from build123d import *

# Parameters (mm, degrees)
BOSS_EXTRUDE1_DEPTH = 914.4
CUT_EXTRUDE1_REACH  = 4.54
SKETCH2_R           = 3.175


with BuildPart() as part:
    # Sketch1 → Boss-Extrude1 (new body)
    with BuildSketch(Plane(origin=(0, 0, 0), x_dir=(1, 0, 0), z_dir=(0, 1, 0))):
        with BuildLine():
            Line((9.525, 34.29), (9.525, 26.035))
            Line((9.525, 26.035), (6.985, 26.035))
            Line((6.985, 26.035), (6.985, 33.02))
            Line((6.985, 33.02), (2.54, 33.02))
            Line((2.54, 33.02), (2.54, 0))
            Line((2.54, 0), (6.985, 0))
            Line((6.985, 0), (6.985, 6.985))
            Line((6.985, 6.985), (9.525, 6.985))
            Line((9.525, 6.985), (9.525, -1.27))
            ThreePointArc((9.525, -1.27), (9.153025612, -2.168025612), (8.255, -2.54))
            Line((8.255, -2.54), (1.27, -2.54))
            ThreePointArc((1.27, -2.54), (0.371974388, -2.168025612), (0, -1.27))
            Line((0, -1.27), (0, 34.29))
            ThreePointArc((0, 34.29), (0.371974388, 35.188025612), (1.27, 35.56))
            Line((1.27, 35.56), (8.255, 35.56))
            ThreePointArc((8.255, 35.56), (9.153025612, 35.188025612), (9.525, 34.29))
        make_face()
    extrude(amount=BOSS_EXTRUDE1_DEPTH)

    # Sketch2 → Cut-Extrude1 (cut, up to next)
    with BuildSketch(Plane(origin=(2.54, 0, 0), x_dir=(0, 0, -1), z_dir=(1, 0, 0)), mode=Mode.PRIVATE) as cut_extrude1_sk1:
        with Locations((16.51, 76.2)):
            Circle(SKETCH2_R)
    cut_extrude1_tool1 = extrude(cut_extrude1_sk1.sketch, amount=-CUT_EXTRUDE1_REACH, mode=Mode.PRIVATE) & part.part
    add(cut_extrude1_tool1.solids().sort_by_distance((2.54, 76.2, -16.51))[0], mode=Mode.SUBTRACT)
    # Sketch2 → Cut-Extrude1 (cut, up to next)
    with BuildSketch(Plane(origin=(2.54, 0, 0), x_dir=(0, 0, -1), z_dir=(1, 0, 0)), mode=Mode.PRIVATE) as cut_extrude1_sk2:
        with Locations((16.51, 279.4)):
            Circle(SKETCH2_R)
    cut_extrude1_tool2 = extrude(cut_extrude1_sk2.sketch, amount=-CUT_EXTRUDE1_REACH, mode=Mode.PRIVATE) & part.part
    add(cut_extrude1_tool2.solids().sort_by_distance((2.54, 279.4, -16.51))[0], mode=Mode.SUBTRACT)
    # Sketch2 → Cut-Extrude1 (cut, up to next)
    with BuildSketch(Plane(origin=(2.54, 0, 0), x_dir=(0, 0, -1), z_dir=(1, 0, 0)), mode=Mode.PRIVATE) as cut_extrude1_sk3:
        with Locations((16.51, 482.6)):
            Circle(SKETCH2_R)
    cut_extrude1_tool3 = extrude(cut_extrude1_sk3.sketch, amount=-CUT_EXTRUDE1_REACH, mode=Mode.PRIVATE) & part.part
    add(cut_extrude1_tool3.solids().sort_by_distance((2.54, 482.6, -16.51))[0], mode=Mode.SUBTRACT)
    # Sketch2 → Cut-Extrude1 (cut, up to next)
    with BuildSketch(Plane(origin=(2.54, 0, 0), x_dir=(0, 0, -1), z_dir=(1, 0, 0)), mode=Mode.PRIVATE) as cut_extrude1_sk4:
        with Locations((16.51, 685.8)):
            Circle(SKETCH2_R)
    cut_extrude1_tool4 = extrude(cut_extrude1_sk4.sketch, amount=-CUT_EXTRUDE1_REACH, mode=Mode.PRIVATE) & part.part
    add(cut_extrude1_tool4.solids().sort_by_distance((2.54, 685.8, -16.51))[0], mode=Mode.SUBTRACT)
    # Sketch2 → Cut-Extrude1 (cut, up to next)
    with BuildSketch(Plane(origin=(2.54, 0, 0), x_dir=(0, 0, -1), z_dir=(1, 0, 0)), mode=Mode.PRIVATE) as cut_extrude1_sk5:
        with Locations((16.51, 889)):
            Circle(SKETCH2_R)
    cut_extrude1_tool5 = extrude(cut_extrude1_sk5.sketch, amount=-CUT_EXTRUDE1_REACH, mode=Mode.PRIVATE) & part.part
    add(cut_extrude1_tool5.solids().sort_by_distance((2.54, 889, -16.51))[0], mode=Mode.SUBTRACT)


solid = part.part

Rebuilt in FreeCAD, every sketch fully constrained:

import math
import FreeCAD as App
import Part
import Sketcher
from FreeCAD import Vector
Q = App.Units.Quantity

doc = App.newDocument("Part")
params = doc.addObject("Spreadsheet::Sheet", "Params")
for row, (alias, value) in enumerate([
    ("sketch1_radius", "0.05 in"),
    ("sketch1_width", "0.1 in"),
    ("sketch1_height", "1.4 in"),
    ("sketch1_height2", "1.3 in"),
    ("sketch1_width2", "0.275 in"),
    ("pad1_length", "36 in"),
    ("sketch2_diameter", "0.25 in"),
    ("sketch3_diameter", "0.25 in"),
    ("sketch4_diameter", "0.25 in"),
    ("sketch5_diameter", "0.25 in"),
    ("sketch6_diameter", "0.25 in"),
], start=1):
    params.set(f"A{row}", alias)
    params.set(f"B{row}", "=" + value)
    params.setAlias(f"B{row}", alias)

body = doc.addObject("PartDesign::Body", "Body")

# Sketch on XZ plane
sketch1 = body.newObject("Sketcher::SketchObject", "Sketch")
sketch1.AttachmentSupport = (doc.getObject("XZ_Plane"), [""])
sketch1.MapMode = "FlatFace"
sketch1.addGeometry(Part.LineSegment(Vector(9.5, -26, 0), Vector(9.5, -34.3, 0)), False)
sketch1.addGeometry(Part.ArcOfCircle(Part.Circle(Vector(8.3, -34.3, 0), Vector(0, 0, 1), 1.3), math.radians(-90), math.radians(0)), False)
sketch1.addGeometry(Part.LineSegment(Vector(8.3, -35.6, 0), Vector(1.3, -35.6, 0)), False)
sketch1.addGeometry(Part.ArcOfCircle(Part.Circle(Vector(1.3, -34.3, 0), Vector(0, 0, 1), 1.3), math.radians(180), math.radians(270)), False)
sketch1.addGeometry(Part.LineSegment(Vector(0, -34.3, 0), Vector(0, 1.3, 0)), False)
sketch1.addGeometry(Part.ArcOfCircle(Part.Circle(Vector(1.3, 1.3, 0), Vector(0, 0, 1), 1.3), math.radians(90), math.radians(180)), False)
sketch1.addGeometry(Part.LineSegment(Vector(1.3, 2.5, 0), Vector(8.3, 2.5, 0)), False)
sketch1.addGeometry(Part.ArcOfCircle(Part.Circle(Vector(8.3, 1.3, 0), Vector(0, 0, 1), 1.3), math.radians(0), math.radians(90)), False)
sketch1.addGeometry(Part.LineSegment(Vector(9.5, 1.3, 0), Vector(9.5, -7, 0)), False)
sketch1.addGeometry(Part.LineSegment(Vector(9.5, -7, 0), Vector(7, -7, 0)), False)
sketch1.addGeometry(Part.LineSegment(Vector(7, -7, 0), Vector(7, 0, 0)), False)
sketch1.addGeometry(Part.LineSegment(Vector(7, 0, 0), Vector(2.5, 0, 0)), False)
sketch1.addGeometry(Part.LineSegment(Vector(2.5, 0, 0), Vector(2.5, -33, 0)), False)
sketch1.addGeometry(Part.LineSegment(Vector(2.5, -33, 0), Vector(7, -33, 0)), False)
sketch1.addGeometry(Part.LineSegment(Vector(7, -33, 0), Vector(7, -26, 0)), False)
sketch1.addGeometry(Part.LineSegment(Vector(7, -26, 0), Vector(9.5, -26, 0)), False)
sketch1.addConstraint(Sketcher.Constraint("Tangent", 0, 2, 1, 2))
sketch1.addConstraint(Sketcher.Constraint("Tangent", 1, 1, 2, 1))
sketch1.addConstraint(Sketcher.Constraint("Tangent", 2, 2, 3, 2))
sketch1.addConstraint(Sketcher.Constraint("Tangent", 3, 1, 4, 1))
sketch1.addConstraint(Sketcher.Constraint("Tangent", 4, 2, 5, 2))
sketch1.addConstraint(Sketcher.Constraint("Tangent", 5, 1, 6, 1))
sketch1.addConstraint(Sketcher.Constraint("Tangent", 6, 2, 7, 2))
sketch1.addConstraint(Sketcher.Constraint("Tangent", 7, 1, 8, 1))
sketch1.addConstraint(Sketcher.Constraint("Coincident", 8, 2, 9, 1))
sketch1.addConstraint(Sketcher.Constraint("Coincident", 9, 2, 10, 1))
sketch1.addConstraint(Sketcher.Constraint("Coincident", 10, 2, 11, 1))
sketch1.addConstraint(Sketcher.Constraint("Coincident", 11, 2, 12, 1))
sketch1.addConstraint(Sketcher.Constraint("Coincident", 12, 2, 13, 1))
sketch1.addConstraint(Sketcher.Constraint("Coincident", 13, 2, 14, 1))
sketch1.addConstraint(Sketcher.Constraint("Coincident", 14, 2, 15, 1))
sketch1.addConstraint(Sketcher.Constraint("Coincident", 15, 2, 0, 1))
sketch1.addConstraint(Sketcher.Constraint("Vertical", 0))
sketch1.addConstraint(Sketcher.Constraint("Horizontal", 2))
sketch1.addConstraint(Sketcher.Constraint("Vertical", 4))
sketch1.addConstraint(Sketcher.Constraint("Horizontal", 6))
sketch1.addConstraint(Sketcher.Constraint("Vertical", 8))
sketch1.addConstraint(Sketcher.Constraint("Horizontal", 9))
sketch1.addConstraint(Sketcher.Constraint("Vertical", 10))
sketch1.addConstraint(Sketcher.Constraint("Horizontal", 11))
sketch1.addConstraint(Sketcher.Constraint("Vertical", 12))
sketch1.addConstraint(Sketcher.Constraint("Horizontal", 13))
sketch1.addConstraint(Sketcher.Constraint("Vertical", 14))
sketch1.addConstraint(Sketcher.Constraint("Horizontal", 15))
sketch1.addConstraint(Sketcher.Constraint("Equal", 1, 3))
sketch1.addConstraint(Sketcher.Constraint("Equal", 3, 5))
sketch1.addConstraint(Sketcher.Constraint("Equal", 5, 7))
sketch1.addConstraint(Sketcher.Constraint("PointOnObject", 3, 1, -2))
sketch1.addConstraint(Sketcher.Constraint("PointOnObject", 10, 2, -1))
sketch1.addConstraint(Sketcher.Constraint("Vertical", 1, 3, 7, 3))
sketch1.addConstraint(Sketcher.Constraint("Vertical", 10, 2, 13, 2))
sketch1.addConstraint(Sketcher.Constraint("Equal", 0, 8))
sketch1.addConstraint(Sketcher.Constraint("Equal", 6, 10))
sketch1.addConstraint(Sketcher.Constraint("Equal", 10, 14))
sketch1.addConstraint(Sketcher.Constraint("Radius", 1, Q("0.05 in")))
sketch1.addConstraint(Sketcher.Constraint("DistanceX", 9, 2, 9, 1, Q("0.1 in")))
sketch1.addConstraint(Sketcher.Constraint("DistanceY", 4, 1, 4, 2, Q("1.4 in")))
sketch1.addConstraint(Sketcher.Constraint("DistanceY", 12, 2, 12, 1, Q("1.3 in")))
sketch1.addConstraint(Sketcher.Constraint("DistanceX", -1, 1, 11, 2, Q("0.1 in")))
sketch1.addConstraint(Sketcher.Constraint("DistanceX", 2, 2, 2, 1, Q("0.275 in")))
sketch1.setExpression("Constraints[38]", "Params.sketch1_radius")
sketch1.setExpression("Constraints[39]", "Params.sketch1_width")
sketch1.setExpression("Constraints[40]", "Params.sketch1_height")
sketch1.setExpression("Constraints[41]", "Params.sketch1_height2")
sketch1.setExpression("Constraints[43]", "Params.sketch1_width2")
pad1 = body.newObject("PartDesign::Pad", "Pad")
pad1.Profile = sketch1
pad1.setExpression("Length", "Params.pad1_length")
pad1.Reversed = True

# Sketch on YZ plane
sketch2 = body.newObject("Sketcher::SketchObject", "Sketch001")
sketch2.AttachmentSupport = (doc.getObject("YZ_Plane"), [""])
sketch2.MapMode = "FlatFace"
sketch2.AttachmentOffset = App.Placement(Vector(0, 0, 0.1 * 25.4), App.Rotation())
sketch2.addGeometry(Part.Circle(Vector(76.2, -16.5, 0), Vector(0, 0, 1), 3.2), False)
sketch2.addConstraint(Sketcher.Constraint("Diameter", 0, Q("0.25 in")))
sketch2.addConstraint(Sketcher.Constraint("DistanceX", -1, 1, 0, 3, Q("3 in")))
sketch2.addConstraint(Sketcher.Constraint("DistanceY", 0, 3, -1, 1, Q("0.65 in")))
sketch2.setExpression("Constraints[0]", "Params.sketch2_diameter")
pocket1 = body.newObject("PartDesign::Pocket", "Pocket")
pocket1.Profile = sketch2
pocket1.Type = "UpToFirst"

# Sketch on YZ plane
sketch3 = body.newObject("Sketcher::SketchObject", "Sketch002")
sketch3.AttachmentSupport = (doc.getObject("YZ_Plane"), [""])
sketch3.MapMode = "FlatFace"
sketch3.AttachmentOffset = App.Placement(Vector(0, 0, 0.1 * 25.4), App.Rotation())
sketch3.addGeometry(Part.Circle(Vector(279.4, -16.5, 0), Vector(0, 0, 1), 3.2), False)
sketch3.addConstraint(Sketcher.Constraint("Diameter", 0, Q("0.25 in")))
sketch3.addConstraint(Sketcher.Constraint("DistanceX", -1, 1, 0, 3, Q("11 in")))
sketch3.addConstraint(Sketcher.Constraint("DistanceY", 0, 3, -1, 1, Q("0.65 in")))
sketch3.setExpression("Constraints[0]", "Params.sketch3_diameter")
pocket2 = body.newObject("PartDesign::Pocket", "Pocket001")
pocket2.Profile = sketch3
pocket2.Type = "UpToFirst"

# Sketch on YZ plane
sketch4 = body.newObject("Sketcher::SketchObject", "Sketch003")
sketch4.AttachmentSupport = (doc.getObject("YZ_Plane"), [""])
sketch4.MapMode = "FlatFace"
sketch4.AttachmentOffset = App.Placement(Vector(0, 0, 0.1 * 25.4), App.Rotation())
sketch4.addGeometry(Part.Circle(Vector(482.6, -16.5, 0), Vector(0, 0, 1), 3.2), False)
sketch4.addConstraint(Sketcher.Constraint("Diameter", 0, Q("0.25 in")))
sketch4.addConstraint(Sketcher.Constraint("DistanceX", -1, 1, 0, 3, Q("19 in")))
sketch4.addConstraint(Sketcher.Constraint("DistanceY", 0, 3, -1, 1, Q("0.65 in")))
sketch4.setExpression("Constraints[0]", "Params.sketch4_diameter")
pocket3 = body.newObject("PartDesign::Pocket", "Pocket002")
pocket3.Profile = sketch4
pocket3.Type = "UpToFirst"

# Sketch on YZ plane
sketch5 = body.newObject("Sketcher::SketchObject", "Sketch004")
sketch5.AttachmentSupport = (doc.getObject("YZ_Plane"), [""])
sketch5.MapMode = "FlatFace"
sketch5.AttachmentOffset = App.Placement(Vector(0, 0, 0.1 * 25.4), App.Rotation())
sketch5.addGeometry(Part.Circle(Vector(685.8, -16.5, 0), Vector(0, 0, 1), 3.2), False)
sketch5.addConstraint(Sketcher.Constraint("Diameter", 0, Q("0.25 in")))
sketch5.addConstraint(Sketcher.Constraint("DistanceX", -1, 1, 0, 3, Q("27 in")))
sketch5.addConstraint(Sketcher.Constraint("DistanceY", 0, 3, -1, 1, Q("0.65 in")))
sketch5.setExpression("Constraints[0]", "Params.sketch5_diameter")
pocket4 = body.newObject("PartDesign::Pocket", "Pocket003")
pocket4.Profile = sketch5
pocket4.Type = "UpToFirst"

# Sketch on YZ plane
sketch6 = body.newObject("Sketcher::SketchObject", "Sketch005")
sketch6.AttachmentSupport = (doc.getObject("YZ_Plane"), [""])
sketch6.MapMode = "FlatFace"
sketch6.AttachmentOffset = App.Placement(Vector(0, 0, 0.1 * 25.4), App.Rotation())
sketch6.addGeometry(Part.Circle(Vector(889, -16.5, 0), Vector(0, 0, 1), 3.2), False)
sketch6.addConstraint(Sketcher.Constraint("Diameter", 0, Q("0.25 in")))
sketch6.addConstraint(Sketcher.Constraint("DistanceX", -1, 1, 0, 3, Q("35 in")))
sketch6.addConstraint(Sketcher.Constraint("DistanceY", 0, 3, -1, 1, Q("0.65 in")))
sketch6.setExpression("Constraints[0]", "Params.sketch6_diameter")
pocket5 = body.newObject("PartDesign::Pocket", "Pocket004")
pocket5.Profile = sketch6
pocket5.Type = "UpToFirst"

doc.recompute()
